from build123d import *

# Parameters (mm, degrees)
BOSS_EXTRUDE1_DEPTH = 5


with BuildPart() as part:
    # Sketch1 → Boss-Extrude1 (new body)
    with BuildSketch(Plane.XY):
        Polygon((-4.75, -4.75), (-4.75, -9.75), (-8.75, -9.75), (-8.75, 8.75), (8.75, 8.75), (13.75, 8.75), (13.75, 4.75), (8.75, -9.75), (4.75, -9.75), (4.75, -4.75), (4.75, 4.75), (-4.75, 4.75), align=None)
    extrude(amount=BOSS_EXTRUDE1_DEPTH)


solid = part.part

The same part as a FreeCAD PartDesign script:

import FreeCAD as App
import Part
import Sketcher
from FreeCAD import Vector
Q = App.Units.Quantity

doc = App.newDocument("Part")
body = doc.addObject("PartDesign::Body", "Body")

sketch1 = body.newObject("Sketcher::SketchObject", "Sketch")
sketch1.AttachmentSupport = (doc.getObject("XY_Plane"), [""])
sketch1.MapMode = "FlatFace"
sketch1.addGeometry([
    Part.LineSegment(Vector(-4.8, -9.8, 0), Vector(-4.8, 4.8, 0)),
    Part.LineSegment(Vector(-4.8, 4.8, 0), Vector(4.8, 4.8, 0)),
    Part.LineSegment(Vector(4.8, 4.8, 0), Vector(4.8, -9.8, 0)),
    Part.LineSegment(Vector(4.8, -9.8, 0), Vector(8.8, -9.8, 0)),
    Part.LineSegment(Vector(8.8, -9.8, 0), Vector(13.8, 4.8, 0)),
    Part.LineSegment(Vector(13.8, 4.8, 0), Vector(13.8, 8.8, 0)),
    Part.LineSegment(Vector(13.8, 8.8, 0), Vector(-8.8, 8.8, 0)),
    Part.LineSegment(Vector(-8.8, 8.8, 0), Vector(-8.8, -9.8, 0)),
    Part.LineSegment(Vector(-8.8, -9.8, 0), Vector(-4.8, -9.8, 0)),
], False)
sketch1.addConstraint([
    Sketcher.Constraint("Coincident", 0, 2, 1, 1),
    Sketcher.Constraint("Coincident", 1, 2, 2, 1),
    Sketcher.Constraint("Coincident", 2, 2, 3, 1),
    Sketcher.Constraint("Coincident", 3, 2, 4, 1),
    Sketcher.Constraint("Coincident", 4, 2, 5, 1),
    Sketcher.Constraint("Coincident", 5, 2, 6, 1),
    Sketcher.Constraint("Coincident", 6, 2, 7, 1),
    Sketcher.Constraint("Coincident", 7, 2, 8, 1),
    Sketcher.Constraint("Coincident", 8, 2, 0, 1),
    Sketcher.Constraint("Vertical", 0),
    Sketcher.Constraint("Horizontal", 1),
    Sketcher.Constraint("Vertical", 2),
    Sketcher.Constraint("Horizontal", 3),
    Sketcher.Constraint("Vertical", 5),
    Sketcher.Constraint("Horizontal", 6),
    Sketcher.Constraint("Vertical", 7),
    Sketcher.Constraint("Horizontal", 8),
    Sketcher.Constraint("Symmetric", 3, 2, 7, 2, -2),
    Sketcher.Constraint("Horizontal", 1, 2, 4, 2),
    Sketcher.Constraint("Equal", 3, 8),
    Sketcher.Constraint("Equal", 8, 5),
    Sketcher.Constraint("DistanceX", 3, 1, 3, 2, Q("4 mm")),
    Sketcher.Constraint("DistanceX", 1, 1, 1, 2, Q("9.5 mm")),
    Sketcher.Constraint("DistanceX", 6, 2, 6, 1, Q("22.5 mm")),
    Sketcher.Constraint("DistanceY", 0, 1, 0, 2, Q("14.5 mm")),
    Sketcher.Constraint("DistanceY", -1, 1, 0, 2, Q("4.75 mm")),
])
pad1 = body.newObject("PartDesign::Pad", "Pad")
pad1.Profile = sketch1
pad1.Length = 5

doc.recompute()
